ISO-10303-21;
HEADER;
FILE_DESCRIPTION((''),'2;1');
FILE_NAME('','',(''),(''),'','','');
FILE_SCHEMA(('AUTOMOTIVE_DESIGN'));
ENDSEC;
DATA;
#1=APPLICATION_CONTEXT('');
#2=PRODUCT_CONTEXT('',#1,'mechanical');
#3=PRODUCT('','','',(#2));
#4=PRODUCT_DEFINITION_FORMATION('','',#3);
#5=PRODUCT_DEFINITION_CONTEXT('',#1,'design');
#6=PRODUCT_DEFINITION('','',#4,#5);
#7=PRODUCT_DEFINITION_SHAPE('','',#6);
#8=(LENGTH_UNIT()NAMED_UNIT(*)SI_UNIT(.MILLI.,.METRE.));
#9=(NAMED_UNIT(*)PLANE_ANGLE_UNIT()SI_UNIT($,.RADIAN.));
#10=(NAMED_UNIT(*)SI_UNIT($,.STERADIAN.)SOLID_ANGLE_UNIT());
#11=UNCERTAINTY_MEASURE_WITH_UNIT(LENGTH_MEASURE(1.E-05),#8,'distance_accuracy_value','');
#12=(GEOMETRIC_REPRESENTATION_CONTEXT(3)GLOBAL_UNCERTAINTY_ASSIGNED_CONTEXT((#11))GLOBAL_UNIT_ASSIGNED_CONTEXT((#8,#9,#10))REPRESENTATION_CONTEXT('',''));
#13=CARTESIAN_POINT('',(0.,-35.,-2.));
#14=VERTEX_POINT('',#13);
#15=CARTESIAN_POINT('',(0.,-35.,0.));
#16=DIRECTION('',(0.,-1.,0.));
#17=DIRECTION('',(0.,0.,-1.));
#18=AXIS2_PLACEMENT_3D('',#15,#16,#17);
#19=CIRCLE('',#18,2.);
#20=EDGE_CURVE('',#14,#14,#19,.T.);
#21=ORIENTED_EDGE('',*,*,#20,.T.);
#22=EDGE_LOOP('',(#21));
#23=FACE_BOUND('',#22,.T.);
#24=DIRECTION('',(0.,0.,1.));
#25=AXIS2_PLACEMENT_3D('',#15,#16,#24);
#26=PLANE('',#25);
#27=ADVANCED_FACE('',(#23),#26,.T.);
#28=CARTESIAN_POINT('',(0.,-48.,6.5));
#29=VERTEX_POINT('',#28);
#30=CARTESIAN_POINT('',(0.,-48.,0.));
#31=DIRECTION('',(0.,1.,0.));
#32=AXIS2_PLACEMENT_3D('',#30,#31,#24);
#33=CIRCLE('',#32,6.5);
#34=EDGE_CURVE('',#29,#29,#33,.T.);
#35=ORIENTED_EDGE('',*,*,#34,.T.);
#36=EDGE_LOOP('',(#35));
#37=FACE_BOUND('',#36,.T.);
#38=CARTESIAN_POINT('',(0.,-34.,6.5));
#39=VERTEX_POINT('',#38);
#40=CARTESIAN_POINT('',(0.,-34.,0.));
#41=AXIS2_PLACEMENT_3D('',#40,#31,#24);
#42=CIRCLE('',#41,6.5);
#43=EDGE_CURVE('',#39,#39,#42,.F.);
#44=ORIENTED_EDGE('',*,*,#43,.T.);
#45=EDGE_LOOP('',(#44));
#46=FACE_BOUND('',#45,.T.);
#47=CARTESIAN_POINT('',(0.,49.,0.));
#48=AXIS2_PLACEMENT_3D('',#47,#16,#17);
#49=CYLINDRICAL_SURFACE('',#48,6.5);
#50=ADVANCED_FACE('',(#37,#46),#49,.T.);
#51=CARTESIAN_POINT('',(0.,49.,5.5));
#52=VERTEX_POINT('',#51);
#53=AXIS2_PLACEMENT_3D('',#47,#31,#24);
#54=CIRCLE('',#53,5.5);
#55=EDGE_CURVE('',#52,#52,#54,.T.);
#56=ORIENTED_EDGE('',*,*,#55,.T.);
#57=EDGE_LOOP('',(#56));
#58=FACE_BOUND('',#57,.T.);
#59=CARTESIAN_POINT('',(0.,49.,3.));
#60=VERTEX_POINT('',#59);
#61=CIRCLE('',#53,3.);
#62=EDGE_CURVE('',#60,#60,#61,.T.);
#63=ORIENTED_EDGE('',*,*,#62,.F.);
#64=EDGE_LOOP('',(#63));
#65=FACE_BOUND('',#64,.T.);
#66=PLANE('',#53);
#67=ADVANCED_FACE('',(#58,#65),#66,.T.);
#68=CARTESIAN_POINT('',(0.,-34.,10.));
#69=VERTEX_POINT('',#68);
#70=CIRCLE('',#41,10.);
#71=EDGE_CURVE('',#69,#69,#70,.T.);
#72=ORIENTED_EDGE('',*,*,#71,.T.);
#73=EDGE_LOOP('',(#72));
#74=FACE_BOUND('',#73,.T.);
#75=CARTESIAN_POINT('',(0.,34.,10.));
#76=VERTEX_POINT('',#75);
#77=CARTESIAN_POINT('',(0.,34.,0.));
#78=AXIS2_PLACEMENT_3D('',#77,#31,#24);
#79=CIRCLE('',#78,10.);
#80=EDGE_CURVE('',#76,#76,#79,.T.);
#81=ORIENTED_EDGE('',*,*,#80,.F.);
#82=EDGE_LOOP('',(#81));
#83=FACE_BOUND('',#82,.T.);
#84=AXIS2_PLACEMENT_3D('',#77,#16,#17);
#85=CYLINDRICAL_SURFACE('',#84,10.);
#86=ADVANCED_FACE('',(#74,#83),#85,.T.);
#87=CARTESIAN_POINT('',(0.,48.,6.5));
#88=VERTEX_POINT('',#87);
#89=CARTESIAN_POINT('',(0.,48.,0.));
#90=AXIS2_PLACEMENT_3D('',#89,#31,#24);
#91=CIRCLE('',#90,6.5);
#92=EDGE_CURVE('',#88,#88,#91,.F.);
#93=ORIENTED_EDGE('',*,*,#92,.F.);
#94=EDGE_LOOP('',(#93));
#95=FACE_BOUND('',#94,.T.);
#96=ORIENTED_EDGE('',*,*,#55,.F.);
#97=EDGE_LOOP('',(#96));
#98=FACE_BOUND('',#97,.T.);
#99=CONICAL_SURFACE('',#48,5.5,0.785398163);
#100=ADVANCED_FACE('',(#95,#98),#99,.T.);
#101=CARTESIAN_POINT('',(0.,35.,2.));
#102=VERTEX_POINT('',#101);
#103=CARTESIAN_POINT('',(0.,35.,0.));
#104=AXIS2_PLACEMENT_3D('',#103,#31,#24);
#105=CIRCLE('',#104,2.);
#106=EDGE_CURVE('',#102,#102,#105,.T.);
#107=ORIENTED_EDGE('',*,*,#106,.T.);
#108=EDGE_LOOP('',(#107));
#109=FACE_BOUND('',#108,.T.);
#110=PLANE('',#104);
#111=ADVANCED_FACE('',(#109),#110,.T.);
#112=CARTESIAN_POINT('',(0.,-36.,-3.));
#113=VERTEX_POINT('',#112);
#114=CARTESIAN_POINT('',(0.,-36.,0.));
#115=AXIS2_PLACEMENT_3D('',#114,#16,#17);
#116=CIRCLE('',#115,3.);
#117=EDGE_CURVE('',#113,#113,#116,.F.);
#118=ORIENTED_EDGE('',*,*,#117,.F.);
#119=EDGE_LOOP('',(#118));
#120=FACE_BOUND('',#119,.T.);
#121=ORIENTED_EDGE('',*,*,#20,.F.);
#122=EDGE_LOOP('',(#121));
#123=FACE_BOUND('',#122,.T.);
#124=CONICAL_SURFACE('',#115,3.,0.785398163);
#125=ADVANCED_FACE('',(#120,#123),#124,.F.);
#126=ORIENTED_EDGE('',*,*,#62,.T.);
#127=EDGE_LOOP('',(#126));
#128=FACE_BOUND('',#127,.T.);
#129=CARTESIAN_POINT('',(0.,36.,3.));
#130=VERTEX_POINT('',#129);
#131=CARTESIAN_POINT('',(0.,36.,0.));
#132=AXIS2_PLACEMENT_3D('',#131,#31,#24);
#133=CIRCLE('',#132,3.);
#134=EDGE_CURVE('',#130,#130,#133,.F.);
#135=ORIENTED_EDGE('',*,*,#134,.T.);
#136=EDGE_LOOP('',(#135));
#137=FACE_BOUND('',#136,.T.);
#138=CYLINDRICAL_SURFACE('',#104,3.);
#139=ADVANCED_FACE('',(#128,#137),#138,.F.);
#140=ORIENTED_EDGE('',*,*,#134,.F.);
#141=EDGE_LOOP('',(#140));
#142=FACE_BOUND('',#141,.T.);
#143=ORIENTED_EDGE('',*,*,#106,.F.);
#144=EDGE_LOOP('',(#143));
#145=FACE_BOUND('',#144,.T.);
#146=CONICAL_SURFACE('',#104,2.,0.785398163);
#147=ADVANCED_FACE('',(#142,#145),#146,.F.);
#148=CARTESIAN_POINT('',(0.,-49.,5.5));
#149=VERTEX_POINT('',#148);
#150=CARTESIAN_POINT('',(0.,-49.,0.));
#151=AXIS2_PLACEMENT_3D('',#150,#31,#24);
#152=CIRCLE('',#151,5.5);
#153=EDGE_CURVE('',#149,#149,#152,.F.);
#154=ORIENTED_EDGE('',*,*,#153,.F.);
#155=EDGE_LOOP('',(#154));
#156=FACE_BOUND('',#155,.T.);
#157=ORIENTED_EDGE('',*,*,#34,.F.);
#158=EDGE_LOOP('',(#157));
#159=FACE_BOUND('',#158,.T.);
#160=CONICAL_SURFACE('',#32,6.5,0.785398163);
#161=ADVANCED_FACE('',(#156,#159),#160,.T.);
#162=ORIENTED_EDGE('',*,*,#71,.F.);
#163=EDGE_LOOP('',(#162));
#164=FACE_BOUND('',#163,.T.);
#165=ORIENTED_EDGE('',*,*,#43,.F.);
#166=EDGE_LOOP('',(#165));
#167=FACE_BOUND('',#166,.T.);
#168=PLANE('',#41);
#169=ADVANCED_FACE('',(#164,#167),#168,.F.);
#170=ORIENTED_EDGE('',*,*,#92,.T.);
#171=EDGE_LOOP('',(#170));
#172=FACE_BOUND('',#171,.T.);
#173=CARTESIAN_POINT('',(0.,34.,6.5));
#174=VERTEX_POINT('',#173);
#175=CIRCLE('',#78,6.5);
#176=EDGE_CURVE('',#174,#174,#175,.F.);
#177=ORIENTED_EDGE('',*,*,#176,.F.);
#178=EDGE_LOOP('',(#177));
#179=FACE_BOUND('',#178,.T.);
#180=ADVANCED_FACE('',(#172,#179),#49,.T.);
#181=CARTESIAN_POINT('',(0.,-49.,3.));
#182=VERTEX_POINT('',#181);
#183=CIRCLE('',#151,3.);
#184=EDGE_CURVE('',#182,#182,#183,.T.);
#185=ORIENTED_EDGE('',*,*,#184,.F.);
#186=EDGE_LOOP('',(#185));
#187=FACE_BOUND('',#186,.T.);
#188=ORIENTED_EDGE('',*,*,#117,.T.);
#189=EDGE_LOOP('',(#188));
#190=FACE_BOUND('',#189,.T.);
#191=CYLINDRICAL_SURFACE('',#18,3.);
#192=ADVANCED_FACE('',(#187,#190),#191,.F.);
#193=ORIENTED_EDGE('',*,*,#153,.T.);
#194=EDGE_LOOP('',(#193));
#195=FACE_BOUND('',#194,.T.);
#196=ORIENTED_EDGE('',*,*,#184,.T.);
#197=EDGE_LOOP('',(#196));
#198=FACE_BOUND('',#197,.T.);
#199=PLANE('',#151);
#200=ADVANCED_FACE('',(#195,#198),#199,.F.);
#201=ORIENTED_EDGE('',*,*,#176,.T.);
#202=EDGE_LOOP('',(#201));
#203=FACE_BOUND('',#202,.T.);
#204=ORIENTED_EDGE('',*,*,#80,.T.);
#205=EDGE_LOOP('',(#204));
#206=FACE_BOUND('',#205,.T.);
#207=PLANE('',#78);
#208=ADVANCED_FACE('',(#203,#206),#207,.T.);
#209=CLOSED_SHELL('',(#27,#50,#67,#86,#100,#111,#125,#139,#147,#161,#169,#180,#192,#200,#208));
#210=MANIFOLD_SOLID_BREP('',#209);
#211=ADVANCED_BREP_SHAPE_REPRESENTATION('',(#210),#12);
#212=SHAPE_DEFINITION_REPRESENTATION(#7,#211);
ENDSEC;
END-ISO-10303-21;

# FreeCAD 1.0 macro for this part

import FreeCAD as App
import Part
import Sketcher
from FreeCAD import Vector
Q = App.Units.Quantity


def edges_at(feature, points):
    """Names of the edges that pass closest to the given points."""
    edges = feature.Shape.Edges
    near = lambda p: min(range(len(edges)), key=lambda i: edges[i].distToShape(Part.Vertex(*p))[0])
    return sorted({f"Edge{near(p) + 1}" for p in points})

doc = App.newDocument("Part")
body = doc.addObject("PartDesign::Body", "Body")

# Sketch on XZ plane
sketch1 = body.newObject("Sketcher::SketchObject", "Sketch")
sketch1.AttachmentSupport = (doc.getObject("XZ_Plane"), [""])
sketch1.MapMode = "FlatFace"
sketch1.addGeometry(Part.Circle(Vector(0, 0, 0), Vector(0, 0, 1), 10), False)
sketch1.addConstraint([
    Sketcher.Constraint("Coincident", 0, 3, -1, 1),
    Sketcher.Constraint("Diameter", 0, Q("20 mm")),
])
pad1 = body.newObject("PartDesign::Pad", "Pad")
pad1.Profile = sketch1
pad1.Length = 68
pad1.Midplane = True

# Sketch on XZ plane
sketch2 = body.newObject("Sketcher::SketchObject", "Sketch001")
sketch2.AttachmentSupport = (doc.getObject("XZ_Plane"), [""])
sketch2.MapMode = "FlatFace"
sketch2.addGeometry(Part.Circle(Vector(0, 0, 0), Vector(0, 0, 1), 6.5), False)
sketch2.addConstraint([
    Sketcher.Constraint("Coincident", 0, 3, -1, 1),
    Sketcher.Constraint("Diameter", 0, Q("13 mm")),
])
pad2 = body.newObject("PartDesign::Pad", "Pad001")
pad2.Profile = sketch2
pad2.Length = 98
pad2.Midplane = True
doc.recompute()

chamfer = body.newObject("PartDesign::Chamfer", "Chamfer")
chamfer.Base = (pad2, edges_at(pad2, [(-6.5, -49, 0), (-6.5, 49, 0)]))
chamfer.Size = 1

# Sketch on XZ plane
sketch3 = body.newObject("Sketcher::SketchObject", "Sketch002")
sketch3.AttachmentSupport = (doc.getObject("XZ_Plane"), [""])
sketch3.MapMode = "FlatFace"
sketch3.AttachmentOffset = App.Placement(Vector(0, 0, -49), App.Rotation())
sketch3.addGeometry(Part.Circle(Vector(0, 0, 0), Vector(0, 0, 1), 3), False)
sketch3.addConstraint([
    Sketcher.Constraint("Coincident", 0, 3, -1, 1),
    Sketcher.Constraint("Diameter", 0, Q("6 mm")),
])
pocket1 = body.newObject("PartDesign::Pocket", "Pocket")
pocket1.Profile = sketch3
pocket1.Length = 14
pocket1.Reversed = True
doc.recompute()

mirrored = body.newObject("PartDesign::Mirrored", "Mirrored")
mirrored.Originals = [pocket1]
mirrored.MirrorPlane = (doc.getObject("XZ_Plane"), [""])
body.Tip = mirrored
doc.recompute()

chamfer2 = body.newObject("PartDesign::Chamfer", "Chamfer001")
chamfer2.Base = (mirrored, edges_at(mirrored, [(-3, 35, 0), (-3, -35, 0)]))
chamfer2.Size = 1

doc.recompute()
